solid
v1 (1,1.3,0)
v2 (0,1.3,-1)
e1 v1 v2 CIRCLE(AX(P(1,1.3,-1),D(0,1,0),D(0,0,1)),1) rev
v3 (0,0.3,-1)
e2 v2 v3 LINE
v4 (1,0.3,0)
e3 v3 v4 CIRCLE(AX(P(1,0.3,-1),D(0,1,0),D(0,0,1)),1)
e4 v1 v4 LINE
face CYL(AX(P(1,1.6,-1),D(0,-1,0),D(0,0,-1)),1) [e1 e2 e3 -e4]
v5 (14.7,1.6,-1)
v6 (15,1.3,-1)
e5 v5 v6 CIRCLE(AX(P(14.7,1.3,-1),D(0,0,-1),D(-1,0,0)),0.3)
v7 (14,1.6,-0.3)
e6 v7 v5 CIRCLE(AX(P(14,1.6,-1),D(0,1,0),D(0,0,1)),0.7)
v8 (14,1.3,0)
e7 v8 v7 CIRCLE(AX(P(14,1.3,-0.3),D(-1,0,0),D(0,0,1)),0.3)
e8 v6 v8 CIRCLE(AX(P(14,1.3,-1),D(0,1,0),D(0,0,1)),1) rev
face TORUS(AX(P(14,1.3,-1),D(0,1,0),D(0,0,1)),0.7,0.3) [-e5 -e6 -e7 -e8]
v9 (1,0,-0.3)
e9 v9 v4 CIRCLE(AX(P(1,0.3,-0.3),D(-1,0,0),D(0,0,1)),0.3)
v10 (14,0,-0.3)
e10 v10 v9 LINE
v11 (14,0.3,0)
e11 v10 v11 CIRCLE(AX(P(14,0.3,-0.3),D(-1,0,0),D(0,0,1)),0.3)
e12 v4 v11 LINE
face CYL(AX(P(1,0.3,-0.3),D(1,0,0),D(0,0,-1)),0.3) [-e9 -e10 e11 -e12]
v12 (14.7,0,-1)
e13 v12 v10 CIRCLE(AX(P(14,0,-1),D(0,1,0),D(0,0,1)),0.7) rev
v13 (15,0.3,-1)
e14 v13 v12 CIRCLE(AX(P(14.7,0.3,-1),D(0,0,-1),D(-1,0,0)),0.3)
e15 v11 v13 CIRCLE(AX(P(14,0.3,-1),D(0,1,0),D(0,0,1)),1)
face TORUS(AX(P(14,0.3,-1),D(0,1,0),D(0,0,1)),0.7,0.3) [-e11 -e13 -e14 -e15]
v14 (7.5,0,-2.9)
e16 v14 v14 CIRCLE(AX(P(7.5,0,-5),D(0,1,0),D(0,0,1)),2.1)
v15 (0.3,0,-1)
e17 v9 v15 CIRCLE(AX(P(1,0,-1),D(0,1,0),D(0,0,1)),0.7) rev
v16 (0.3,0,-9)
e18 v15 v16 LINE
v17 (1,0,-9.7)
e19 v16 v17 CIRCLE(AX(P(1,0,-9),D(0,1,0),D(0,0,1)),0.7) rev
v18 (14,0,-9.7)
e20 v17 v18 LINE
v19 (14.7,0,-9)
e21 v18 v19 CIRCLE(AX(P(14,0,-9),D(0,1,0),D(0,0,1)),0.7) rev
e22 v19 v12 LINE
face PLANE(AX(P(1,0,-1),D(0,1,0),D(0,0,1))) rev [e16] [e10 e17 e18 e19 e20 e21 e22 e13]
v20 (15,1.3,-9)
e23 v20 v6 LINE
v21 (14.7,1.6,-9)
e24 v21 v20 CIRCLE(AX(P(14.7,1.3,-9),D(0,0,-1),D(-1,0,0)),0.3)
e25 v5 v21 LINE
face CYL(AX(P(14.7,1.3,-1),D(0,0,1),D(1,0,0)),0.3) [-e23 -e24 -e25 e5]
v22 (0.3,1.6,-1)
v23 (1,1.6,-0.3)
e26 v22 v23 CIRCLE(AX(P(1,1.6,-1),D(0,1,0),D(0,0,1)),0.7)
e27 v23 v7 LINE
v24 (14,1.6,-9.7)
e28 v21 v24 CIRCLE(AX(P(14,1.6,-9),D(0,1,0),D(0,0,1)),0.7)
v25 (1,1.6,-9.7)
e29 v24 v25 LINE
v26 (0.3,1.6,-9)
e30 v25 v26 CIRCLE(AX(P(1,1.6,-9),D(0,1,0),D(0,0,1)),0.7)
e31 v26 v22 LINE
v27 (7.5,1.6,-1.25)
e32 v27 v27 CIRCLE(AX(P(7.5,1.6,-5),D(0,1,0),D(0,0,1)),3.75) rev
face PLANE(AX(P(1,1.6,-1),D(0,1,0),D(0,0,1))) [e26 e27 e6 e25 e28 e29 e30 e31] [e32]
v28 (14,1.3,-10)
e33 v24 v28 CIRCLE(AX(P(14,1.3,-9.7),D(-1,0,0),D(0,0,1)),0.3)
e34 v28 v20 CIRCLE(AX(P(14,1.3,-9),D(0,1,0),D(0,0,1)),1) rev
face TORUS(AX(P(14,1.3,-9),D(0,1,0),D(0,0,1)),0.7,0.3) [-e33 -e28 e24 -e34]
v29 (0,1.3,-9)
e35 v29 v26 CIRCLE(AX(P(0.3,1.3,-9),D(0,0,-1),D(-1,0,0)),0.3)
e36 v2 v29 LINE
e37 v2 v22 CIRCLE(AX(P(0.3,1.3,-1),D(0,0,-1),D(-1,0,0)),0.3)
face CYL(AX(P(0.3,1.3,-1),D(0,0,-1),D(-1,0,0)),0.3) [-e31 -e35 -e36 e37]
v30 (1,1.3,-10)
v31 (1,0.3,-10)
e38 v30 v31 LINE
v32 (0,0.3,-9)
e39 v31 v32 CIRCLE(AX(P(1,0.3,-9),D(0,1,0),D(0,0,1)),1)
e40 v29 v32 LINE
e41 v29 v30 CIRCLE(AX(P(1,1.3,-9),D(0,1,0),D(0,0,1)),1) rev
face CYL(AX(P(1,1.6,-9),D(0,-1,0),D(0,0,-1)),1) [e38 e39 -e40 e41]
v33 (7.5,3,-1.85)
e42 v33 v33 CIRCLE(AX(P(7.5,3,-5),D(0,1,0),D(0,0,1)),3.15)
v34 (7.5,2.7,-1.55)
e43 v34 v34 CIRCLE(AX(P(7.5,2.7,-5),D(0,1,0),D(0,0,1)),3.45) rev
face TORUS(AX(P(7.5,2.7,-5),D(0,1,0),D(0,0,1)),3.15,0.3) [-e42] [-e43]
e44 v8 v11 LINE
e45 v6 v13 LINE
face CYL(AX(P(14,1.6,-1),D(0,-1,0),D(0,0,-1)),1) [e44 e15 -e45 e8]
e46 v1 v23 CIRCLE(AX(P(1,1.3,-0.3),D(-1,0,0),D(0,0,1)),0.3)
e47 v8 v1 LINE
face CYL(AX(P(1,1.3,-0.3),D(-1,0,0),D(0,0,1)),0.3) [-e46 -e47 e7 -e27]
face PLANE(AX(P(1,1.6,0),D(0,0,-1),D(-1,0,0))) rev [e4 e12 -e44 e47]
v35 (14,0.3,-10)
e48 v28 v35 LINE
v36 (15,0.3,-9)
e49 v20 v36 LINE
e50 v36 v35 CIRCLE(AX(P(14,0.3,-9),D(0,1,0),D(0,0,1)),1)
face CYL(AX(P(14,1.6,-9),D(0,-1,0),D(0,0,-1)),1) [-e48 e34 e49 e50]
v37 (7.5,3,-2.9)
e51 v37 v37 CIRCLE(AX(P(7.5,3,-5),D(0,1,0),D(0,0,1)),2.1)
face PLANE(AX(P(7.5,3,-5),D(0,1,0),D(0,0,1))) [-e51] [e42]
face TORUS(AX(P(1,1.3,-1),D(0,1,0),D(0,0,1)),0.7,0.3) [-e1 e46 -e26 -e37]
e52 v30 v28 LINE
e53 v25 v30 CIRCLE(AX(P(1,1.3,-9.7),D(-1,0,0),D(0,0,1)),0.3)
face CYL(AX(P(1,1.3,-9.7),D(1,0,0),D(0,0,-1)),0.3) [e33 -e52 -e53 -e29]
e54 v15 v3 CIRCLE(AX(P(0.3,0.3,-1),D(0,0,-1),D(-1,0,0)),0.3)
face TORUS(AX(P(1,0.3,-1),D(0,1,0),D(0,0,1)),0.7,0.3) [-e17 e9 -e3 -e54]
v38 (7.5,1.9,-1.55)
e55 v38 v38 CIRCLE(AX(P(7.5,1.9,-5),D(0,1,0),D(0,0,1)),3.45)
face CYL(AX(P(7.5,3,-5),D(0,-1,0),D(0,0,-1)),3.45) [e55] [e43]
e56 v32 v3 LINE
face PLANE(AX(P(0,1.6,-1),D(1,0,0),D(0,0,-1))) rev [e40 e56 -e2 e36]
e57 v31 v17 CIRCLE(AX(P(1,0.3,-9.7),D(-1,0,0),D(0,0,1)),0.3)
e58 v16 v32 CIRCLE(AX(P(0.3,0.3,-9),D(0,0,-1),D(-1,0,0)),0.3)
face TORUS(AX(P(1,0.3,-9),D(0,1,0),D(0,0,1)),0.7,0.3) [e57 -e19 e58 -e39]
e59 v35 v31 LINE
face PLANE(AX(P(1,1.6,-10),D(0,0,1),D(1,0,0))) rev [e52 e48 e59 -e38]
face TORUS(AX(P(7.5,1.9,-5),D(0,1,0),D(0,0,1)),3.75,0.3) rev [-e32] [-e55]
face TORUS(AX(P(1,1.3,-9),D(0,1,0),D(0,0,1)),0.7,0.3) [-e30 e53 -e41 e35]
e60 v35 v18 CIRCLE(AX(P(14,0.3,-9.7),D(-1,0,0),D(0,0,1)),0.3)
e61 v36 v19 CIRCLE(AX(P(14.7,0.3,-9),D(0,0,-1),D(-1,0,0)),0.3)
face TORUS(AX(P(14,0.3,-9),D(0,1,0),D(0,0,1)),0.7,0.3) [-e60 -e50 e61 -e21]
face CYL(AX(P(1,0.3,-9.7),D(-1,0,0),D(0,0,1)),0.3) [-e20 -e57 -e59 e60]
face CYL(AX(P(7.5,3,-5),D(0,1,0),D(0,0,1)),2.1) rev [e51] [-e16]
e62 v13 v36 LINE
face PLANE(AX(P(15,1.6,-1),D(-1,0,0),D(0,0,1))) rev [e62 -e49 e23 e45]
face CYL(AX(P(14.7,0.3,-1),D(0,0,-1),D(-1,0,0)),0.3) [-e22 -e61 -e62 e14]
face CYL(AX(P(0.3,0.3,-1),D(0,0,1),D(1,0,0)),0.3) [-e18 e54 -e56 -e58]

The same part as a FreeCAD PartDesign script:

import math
import FreeCAD as App
import Part
import Sketcher
Q = App.Units.Quantity


def edges_at(feature, points):
    """Names of the edges that pass closest to the given points."""
    edges = feature.Shape.Edges
    near = lambda p: min(range(len(edges)), key=lambda i: edges[i].distToShape(Part.Vertex(*p))[0])
    return sorted({f"Edge{near(p) + 1}" for p in points})

doc = App.newDocument("Part")
body = doc.addObject("PartDesign::Body", "Body")

sketch1 = body.newObject("Sketcher::SketchObject", "Sketch")
sketch1.AttachmentSupport = (doc.getObject("XZ_Plane"), [""])
sketch1.MapMode = "FlatFace"
sketch1.addGeometry([
    Part.LineSegment(App.Vector(1, 0, 0), App.Vector(14, 0, 0)),
    Part.ArcOfCircle(Part.Circle(App.Vector(14, -1, 0), App.Vector(0, 0, 1), 1), math.radians(0), math.radians(90)),
    Part.LineSegment(App.Vector(15, -1, 0), App.Vector(15, -9, 0)),
    Part.ArcOfCircle(Part.Circle(App.Vector(14, -9, 0), App.Vector(0, 0, 1), 1), math.radians(-90), math.radians(0)),
    Part.LineSegment(App.Vector(14, -10, 0), App.Vector(1, -10, 0)),
    Part.ArcOfCircle(Part.Circle(App.Vector(1, -9, 0), App.Vector(0, 0, 1), 1), math.radians(-180), math.radians(-90)),
    Part.LineSegment(App.Vector(0, -9, 0), App.Vector(0, -1, 0)),
    Part.ArcOfCircle(Part.Circle(App.Vector(1, -1, 0), App.Vector(0, 0, 1), 1), math.radians(90), math.radians(180)),
], False)
sketch1.addConstraint([
    Sketcher.Constraint("Tangent", 0, 2, 1, 2),
    Sketcher.Constraint("Tangent", 1, 1, 2, 1),
    Sketcher.Constraint("Tangent", 2, 2, 3, 2),
    Sketcher.Constraint("Tangent", 3, 1, 4, 1),
    Sketcher.Constraint("Tangent", 4, 2, 5, 2),
    Sketcher.Constraint("Tangent", 5, 1, 6, 1),
    Sketcher.Constraint("Tangent", 6, 2, 7, 2),
    Sketcher.Constraint("Tangent", 7, 1, 0, 1),
    Sketcher.Constraint("Horizontal", 0),
    Sketcher.Constraint("Vertical", 2),
    Sketcher.Constraint("Horizontal", 4),
    Sketcher.Constraint("Vertical", 6),
    Sketcher.Constraint("Equal", 1, 3),
    Sketcher.Constraint("Equal", 3, 5),
    Sketcher.Constraint("Equal", 5, 7),
    Sketcher.Constraint("PointOnObject", 0, 2, -1),
    Sketcher.Constraint("PointOnObject", 5, 1, -2),
    Sketcher.Constraint("Radius", 1, Q("1 mm")),
    Sketcher.Constraint("DistanceX", 0, 1, 0, 2, Q("13 mm")),
    Sketcher.Constraint("DistanceY", 2, 2, 2, 1, Q("8 mm")),
])
pad1 = body.newObject("PartDesign::Pad", "Pad")
pad1.Profile = sketch1
pad1.Length = 1.6
pad1.Reversed = True

sketch2 = body.newObject("Sketcher::SketchObject", "Sketch001")
sketch2.AttachmentSupport = (doc.getObject("XZ_Plane"), [""])
sketch2.MapMode = "FlatFace"
sketch2.AttachmentOffset = App.Placement(App.Vector(0, 0, -1.6), App.Rotation())
sketch2.addGeometry(Part.Circle(App.Vector(7.5, -5, 0), App.Vector(0, 0, 1), 3.5), False)
sketch2.addConstraint([
    Sketcher.Constraint("Diameter", 0, Q("6.9 mm")),
    Sketcher.Constraint("DistanceY", 0, 3, -1, 1, Q("5 mm")),
    Sketcher.Constraint("DistanceX", -1, 1, 0, 3, Q("7.5 mm")),
])
pad2 = body.newObject("PartDesign::Pad", "Pad001")
pad2.Profile = sketch2
pad2.Length = 1.4
pad2.Reversed = True

sketch3 = body.newObject("Sketcher::SketchObject", "Sketch002")
sketch3.AttachmentSupport = (doc.getObject("XZ_Plane"), [""])
sketch3.MapMode = "FlatFace"
sketch3.AttachmentOffset = App.Placement(App.Vector(0, 0, -3), App.Rotation())
sketch3.addGeometry(Part.Circle(App.Vector(7.5, -5, 0), App.Vector(0, 0, 1), 2.1), False)
sketch3.addConstraint([
    Sketcher.Constraint("Diameter", 0, Q("4.2 mm")),
    Sketcher.Constraint("DistanceY", 0, 3, -1, 1, Q("5 mm")),
    Sketcher.Constraint("DistanceX", -1, 1, 0, 3, Q("7.5 mm")),
])
doc.recompute()
hole = body.newObject("PartDesign::Hole", "Hole")
hole.Profile = sketch3
hole.ThreadType = "None"
hole.Diameter = 4.2
hole.DepthType = "ThroughAll"
hole.Reversed = True
doc.recompute()

fillet = body.newObject("PartDesign::Fillet", "Fillet")
fillet.Base = (hole, edges_at(hole, [
    (14.707, 1.6, -0.293),
    (7.5, 0, 0),
    (0.293, 0, -0.293),
    (15, 1.6, -5),
    (14.707, 1.6, -9.707),
    (7.5, 1.6, -10),
    (0.293, 1.6, -9.707),
    (4.05, 1.6, -5),
    (4.05, 3, -5),
    (0, 1.6, -5),
    (0.293, 1.6, -0.293),
    (7.5, 1.6, 0),
    (0, 0, -5),
    (0.293, 0, -9.707),
    (7.5, 0, -10),
    (14.707, 0, -9.707),
    (15, 0, -5),
    (14.707, 0, -0.293),
]))
fillet.Radius = 0.3

doc.recompute()
